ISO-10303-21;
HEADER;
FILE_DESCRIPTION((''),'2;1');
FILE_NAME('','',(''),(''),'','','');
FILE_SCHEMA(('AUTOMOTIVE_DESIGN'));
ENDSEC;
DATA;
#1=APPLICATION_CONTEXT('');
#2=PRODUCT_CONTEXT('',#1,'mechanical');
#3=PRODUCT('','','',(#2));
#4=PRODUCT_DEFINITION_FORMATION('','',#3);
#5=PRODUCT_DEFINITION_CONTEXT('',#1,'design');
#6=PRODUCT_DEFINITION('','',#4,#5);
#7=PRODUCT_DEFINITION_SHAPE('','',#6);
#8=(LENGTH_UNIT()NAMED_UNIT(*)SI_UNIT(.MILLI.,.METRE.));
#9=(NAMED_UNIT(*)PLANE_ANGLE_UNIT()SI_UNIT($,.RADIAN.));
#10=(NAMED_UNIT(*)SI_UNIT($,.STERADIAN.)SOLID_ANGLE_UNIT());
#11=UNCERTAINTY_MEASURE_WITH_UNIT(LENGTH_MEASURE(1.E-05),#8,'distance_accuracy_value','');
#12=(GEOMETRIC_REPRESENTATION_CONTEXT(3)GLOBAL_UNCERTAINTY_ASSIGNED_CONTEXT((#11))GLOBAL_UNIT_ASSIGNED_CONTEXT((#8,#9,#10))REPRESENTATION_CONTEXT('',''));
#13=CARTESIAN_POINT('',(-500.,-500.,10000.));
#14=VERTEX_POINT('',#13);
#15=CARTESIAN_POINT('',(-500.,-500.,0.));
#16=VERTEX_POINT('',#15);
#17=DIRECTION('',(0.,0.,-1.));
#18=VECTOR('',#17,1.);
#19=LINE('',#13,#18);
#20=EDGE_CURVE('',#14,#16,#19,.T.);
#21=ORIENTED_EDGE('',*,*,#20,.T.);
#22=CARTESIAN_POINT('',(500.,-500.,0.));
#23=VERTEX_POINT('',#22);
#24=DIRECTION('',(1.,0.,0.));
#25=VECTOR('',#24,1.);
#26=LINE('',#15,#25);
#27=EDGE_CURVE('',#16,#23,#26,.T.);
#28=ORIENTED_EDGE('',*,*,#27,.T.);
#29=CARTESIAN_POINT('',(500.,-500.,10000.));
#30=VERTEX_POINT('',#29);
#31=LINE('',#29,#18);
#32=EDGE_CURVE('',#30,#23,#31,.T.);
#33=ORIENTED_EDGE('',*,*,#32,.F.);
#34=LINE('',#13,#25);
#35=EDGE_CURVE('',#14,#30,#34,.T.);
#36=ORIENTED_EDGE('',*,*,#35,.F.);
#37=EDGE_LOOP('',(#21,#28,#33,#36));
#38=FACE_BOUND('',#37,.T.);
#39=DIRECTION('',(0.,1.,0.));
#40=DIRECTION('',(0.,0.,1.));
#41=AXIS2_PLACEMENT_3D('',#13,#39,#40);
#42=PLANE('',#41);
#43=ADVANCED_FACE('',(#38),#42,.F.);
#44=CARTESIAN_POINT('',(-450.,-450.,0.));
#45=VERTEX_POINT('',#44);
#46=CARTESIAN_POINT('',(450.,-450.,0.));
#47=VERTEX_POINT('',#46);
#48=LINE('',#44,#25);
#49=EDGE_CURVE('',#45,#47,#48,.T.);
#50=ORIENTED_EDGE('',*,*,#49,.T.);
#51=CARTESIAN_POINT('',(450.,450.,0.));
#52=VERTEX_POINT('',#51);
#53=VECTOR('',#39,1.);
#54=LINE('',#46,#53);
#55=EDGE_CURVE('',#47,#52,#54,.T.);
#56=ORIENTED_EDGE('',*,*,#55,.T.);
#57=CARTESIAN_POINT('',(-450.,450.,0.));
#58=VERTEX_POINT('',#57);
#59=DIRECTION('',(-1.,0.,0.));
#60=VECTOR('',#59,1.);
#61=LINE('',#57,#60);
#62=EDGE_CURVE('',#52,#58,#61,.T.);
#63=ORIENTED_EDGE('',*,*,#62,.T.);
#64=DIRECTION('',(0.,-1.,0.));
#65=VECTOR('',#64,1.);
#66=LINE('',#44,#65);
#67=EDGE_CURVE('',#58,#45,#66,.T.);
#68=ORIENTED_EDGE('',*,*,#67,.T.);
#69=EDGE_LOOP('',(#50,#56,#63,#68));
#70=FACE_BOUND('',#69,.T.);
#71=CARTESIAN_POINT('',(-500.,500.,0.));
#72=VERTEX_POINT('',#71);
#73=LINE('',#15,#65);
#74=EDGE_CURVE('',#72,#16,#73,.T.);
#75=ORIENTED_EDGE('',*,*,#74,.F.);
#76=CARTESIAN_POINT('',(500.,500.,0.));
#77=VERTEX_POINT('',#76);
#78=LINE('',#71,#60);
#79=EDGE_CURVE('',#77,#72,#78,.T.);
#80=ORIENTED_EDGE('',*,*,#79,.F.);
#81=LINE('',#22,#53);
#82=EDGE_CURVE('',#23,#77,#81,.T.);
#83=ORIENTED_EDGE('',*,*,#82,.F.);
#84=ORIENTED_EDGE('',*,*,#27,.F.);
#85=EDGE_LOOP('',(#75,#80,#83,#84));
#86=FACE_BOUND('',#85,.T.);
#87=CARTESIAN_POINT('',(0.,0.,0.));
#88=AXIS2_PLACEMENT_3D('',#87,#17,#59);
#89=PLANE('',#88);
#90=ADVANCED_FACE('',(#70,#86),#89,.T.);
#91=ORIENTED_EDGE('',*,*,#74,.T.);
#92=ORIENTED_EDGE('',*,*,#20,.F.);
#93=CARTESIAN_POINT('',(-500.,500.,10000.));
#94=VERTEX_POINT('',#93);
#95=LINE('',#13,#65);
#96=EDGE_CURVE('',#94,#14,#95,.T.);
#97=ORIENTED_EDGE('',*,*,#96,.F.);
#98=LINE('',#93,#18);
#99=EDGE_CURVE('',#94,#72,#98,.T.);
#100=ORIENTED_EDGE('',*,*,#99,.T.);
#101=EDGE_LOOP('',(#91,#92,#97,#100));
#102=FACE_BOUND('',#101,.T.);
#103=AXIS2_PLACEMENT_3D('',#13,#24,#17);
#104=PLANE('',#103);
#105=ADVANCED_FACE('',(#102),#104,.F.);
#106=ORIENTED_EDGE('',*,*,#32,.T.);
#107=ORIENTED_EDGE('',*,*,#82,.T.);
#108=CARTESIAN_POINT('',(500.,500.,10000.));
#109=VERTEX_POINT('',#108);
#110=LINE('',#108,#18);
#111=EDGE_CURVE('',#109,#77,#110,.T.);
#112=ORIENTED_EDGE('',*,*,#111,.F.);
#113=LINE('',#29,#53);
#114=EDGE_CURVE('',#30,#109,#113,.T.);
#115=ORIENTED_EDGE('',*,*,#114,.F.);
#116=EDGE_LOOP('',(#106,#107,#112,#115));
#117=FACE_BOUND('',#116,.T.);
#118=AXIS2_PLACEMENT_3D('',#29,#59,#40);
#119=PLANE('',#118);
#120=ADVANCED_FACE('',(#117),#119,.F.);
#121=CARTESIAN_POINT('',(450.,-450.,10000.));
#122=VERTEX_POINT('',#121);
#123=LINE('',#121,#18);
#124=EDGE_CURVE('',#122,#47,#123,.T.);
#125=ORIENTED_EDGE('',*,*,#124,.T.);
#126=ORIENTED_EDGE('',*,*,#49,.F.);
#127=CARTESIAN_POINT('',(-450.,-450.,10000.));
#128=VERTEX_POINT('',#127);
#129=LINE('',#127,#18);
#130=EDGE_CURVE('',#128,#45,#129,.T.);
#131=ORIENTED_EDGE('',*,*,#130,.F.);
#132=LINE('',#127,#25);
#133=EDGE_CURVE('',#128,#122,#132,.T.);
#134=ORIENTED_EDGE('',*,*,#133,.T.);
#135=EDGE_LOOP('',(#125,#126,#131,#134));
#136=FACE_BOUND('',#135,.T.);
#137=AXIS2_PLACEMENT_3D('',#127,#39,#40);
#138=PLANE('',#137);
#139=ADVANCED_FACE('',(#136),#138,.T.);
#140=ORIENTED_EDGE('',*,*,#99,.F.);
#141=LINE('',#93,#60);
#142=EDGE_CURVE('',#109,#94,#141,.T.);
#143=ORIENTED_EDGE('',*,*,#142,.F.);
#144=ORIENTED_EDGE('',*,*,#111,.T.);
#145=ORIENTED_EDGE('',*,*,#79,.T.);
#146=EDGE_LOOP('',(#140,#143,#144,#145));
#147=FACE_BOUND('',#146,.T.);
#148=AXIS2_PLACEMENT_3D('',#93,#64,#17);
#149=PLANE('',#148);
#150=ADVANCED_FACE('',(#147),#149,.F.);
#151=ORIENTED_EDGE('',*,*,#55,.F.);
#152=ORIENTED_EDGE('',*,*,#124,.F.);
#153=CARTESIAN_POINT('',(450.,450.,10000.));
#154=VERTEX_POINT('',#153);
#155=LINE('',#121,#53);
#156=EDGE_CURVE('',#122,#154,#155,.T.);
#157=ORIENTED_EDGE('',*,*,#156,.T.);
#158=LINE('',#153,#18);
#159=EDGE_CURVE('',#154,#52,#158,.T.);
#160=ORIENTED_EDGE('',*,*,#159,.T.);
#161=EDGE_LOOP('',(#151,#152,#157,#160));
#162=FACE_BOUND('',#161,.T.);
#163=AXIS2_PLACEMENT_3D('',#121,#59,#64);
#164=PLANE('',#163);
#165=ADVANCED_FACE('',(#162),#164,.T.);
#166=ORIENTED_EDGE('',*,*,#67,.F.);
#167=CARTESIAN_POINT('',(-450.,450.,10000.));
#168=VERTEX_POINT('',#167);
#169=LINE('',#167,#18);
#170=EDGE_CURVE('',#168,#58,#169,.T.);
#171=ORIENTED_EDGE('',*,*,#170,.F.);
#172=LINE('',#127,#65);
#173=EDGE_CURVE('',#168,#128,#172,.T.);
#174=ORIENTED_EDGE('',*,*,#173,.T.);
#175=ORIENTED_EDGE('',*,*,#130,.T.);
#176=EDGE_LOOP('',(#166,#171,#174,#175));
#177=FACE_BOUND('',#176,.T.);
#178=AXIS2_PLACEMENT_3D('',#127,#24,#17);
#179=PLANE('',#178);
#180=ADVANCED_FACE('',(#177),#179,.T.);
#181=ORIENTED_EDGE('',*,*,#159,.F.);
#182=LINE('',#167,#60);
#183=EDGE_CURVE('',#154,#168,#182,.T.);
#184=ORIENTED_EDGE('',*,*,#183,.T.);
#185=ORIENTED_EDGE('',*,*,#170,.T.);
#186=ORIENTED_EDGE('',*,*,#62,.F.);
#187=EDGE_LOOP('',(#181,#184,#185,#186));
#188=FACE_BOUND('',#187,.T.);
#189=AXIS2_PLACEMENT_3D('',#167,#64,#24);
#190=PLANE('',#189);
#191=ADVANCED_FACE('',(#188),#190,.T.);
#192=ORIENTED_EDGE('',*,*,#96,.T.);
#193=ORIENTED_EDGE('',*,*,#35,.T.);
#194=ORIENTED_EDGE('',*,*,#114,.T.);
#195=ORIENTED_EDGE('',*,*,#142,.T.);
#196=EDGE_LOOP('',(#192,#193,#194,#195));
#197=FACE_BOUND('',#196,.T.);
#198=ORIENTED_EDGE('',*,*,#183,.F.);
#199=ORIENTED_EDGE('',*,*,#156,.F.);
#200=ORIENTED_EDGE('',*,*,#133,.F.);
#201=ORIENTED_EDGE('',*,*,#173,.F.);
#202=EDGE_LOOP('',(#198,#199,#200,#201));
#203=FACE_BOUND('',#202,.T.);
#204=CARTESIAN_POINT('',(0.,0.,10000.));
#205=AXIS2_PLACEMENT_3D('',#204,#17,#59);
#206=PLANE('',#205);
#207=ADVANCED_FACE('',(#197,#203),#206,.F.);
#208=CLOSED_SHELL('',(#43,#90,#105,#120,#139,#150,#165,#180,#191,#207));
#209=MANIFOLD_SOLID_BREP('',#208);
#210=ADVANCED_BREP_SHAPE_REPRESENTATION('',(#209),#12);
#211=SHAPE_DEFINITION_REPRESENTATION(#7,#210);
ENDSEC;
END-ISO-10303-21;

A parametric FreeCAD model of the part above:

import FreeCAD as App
import Part
import Sketcher

V = App.Vector

doc = App.newDocument("Part")
body = doc.addObject("PartDesign::Body", "Body")

# Sketch on XY plane
sketch1 = doc.addObject("Sketcher::SketchObject", "Sketch")
body.addObject(sketch1)
sketch1.AttachmentSupport = (doc.XY_Plane, [""])
sketch1.MapMode = "FlatFace"
sketch1.addGeometry([
    Part.LineSegment(V(-500, 500, 0), V(-500, -500, 0)),  # 0
    Part.LineSegment(V(-500, -500, 0), V(500, -500, 0)),  # 1
    Part.LineSegment(V(500, -500, 0), V(500, 500, 0)),  # 2
    Part.LineSegment(V(500, 500, 0), V(-500, 500, 0)),  # 3
    Part.LineSegment(V(450, -450, 0), V(-450, -450, 0)),  # 4
    Part.LineSegment(V(-450, -450, 0), V(-450, 450, 0)),  # 5
    Part.LineSegment(V(-450, 450, 0), V(450, 450, 0)),  # 6
    Part.LineSegment(V(450, 450, 0), V(450, -450, 0)),  # 7
], False)
sketch1.addConstraint([
    Sketcher.Constraint("Coincident", 0, 2, 1, 1),
    Sketcher.Constraint("Coincident", 1, 2, 2, 1),
    Sketcher.Constraint("Coincident", 2, 2, 3, 1),
    Sketcher.Constraint("Coincident", 3, 2, 0, 1),
    Sketcher.Constraint("Coincident", 4, 2, 5, 1),
    Sketcher.Constraint("Coincident", 5, 2, 6, 1),
    Sketcher.Constraint("Coincident", 6, 2, 7, 1),
    Sketcher.Constraint("Coincident", 7, 2, 4, 1),
    Sketcher.Constraint("Vertical", 0),
    Sketcher.Constraint("Horizontal", 1),
    Sketcher.Constraint("Vertical", 2),
    Sketcher.Constraint("Horizontal", 3),
    Sketcher.Constraint("Horizontal", 4),
    Sketcher.Constraint("Vertical", 5),
    Sketcher.Constraint("Horizontal", 6),
    Sketcher.Constraint("Vertical", 7),
    Sketcher.Constraint("Symmetric", 0, 2, 2, 2, -1, 1),
    Sketcher.Constraint("Symmetric", 4, 2, 6, 2, -1, 1),
    Sketcher.Constraint("Equal", 3, 0),
    Sketcher.Constraint("Equal", 6, 5),
    Sketcher.Constraint("DistanceX", 1, 1, 1, 2, 1000.0),
    Sketcher.Constraint("DistanceX", 4, 2, 4, 1, 900.0),
])
pad1 = doc.addObject("PartDesign::Pad", "Pad")
body.addObject(pad1)
pad1.Profile = sketch1
pad1.Length = 10000

doc.recompute()
